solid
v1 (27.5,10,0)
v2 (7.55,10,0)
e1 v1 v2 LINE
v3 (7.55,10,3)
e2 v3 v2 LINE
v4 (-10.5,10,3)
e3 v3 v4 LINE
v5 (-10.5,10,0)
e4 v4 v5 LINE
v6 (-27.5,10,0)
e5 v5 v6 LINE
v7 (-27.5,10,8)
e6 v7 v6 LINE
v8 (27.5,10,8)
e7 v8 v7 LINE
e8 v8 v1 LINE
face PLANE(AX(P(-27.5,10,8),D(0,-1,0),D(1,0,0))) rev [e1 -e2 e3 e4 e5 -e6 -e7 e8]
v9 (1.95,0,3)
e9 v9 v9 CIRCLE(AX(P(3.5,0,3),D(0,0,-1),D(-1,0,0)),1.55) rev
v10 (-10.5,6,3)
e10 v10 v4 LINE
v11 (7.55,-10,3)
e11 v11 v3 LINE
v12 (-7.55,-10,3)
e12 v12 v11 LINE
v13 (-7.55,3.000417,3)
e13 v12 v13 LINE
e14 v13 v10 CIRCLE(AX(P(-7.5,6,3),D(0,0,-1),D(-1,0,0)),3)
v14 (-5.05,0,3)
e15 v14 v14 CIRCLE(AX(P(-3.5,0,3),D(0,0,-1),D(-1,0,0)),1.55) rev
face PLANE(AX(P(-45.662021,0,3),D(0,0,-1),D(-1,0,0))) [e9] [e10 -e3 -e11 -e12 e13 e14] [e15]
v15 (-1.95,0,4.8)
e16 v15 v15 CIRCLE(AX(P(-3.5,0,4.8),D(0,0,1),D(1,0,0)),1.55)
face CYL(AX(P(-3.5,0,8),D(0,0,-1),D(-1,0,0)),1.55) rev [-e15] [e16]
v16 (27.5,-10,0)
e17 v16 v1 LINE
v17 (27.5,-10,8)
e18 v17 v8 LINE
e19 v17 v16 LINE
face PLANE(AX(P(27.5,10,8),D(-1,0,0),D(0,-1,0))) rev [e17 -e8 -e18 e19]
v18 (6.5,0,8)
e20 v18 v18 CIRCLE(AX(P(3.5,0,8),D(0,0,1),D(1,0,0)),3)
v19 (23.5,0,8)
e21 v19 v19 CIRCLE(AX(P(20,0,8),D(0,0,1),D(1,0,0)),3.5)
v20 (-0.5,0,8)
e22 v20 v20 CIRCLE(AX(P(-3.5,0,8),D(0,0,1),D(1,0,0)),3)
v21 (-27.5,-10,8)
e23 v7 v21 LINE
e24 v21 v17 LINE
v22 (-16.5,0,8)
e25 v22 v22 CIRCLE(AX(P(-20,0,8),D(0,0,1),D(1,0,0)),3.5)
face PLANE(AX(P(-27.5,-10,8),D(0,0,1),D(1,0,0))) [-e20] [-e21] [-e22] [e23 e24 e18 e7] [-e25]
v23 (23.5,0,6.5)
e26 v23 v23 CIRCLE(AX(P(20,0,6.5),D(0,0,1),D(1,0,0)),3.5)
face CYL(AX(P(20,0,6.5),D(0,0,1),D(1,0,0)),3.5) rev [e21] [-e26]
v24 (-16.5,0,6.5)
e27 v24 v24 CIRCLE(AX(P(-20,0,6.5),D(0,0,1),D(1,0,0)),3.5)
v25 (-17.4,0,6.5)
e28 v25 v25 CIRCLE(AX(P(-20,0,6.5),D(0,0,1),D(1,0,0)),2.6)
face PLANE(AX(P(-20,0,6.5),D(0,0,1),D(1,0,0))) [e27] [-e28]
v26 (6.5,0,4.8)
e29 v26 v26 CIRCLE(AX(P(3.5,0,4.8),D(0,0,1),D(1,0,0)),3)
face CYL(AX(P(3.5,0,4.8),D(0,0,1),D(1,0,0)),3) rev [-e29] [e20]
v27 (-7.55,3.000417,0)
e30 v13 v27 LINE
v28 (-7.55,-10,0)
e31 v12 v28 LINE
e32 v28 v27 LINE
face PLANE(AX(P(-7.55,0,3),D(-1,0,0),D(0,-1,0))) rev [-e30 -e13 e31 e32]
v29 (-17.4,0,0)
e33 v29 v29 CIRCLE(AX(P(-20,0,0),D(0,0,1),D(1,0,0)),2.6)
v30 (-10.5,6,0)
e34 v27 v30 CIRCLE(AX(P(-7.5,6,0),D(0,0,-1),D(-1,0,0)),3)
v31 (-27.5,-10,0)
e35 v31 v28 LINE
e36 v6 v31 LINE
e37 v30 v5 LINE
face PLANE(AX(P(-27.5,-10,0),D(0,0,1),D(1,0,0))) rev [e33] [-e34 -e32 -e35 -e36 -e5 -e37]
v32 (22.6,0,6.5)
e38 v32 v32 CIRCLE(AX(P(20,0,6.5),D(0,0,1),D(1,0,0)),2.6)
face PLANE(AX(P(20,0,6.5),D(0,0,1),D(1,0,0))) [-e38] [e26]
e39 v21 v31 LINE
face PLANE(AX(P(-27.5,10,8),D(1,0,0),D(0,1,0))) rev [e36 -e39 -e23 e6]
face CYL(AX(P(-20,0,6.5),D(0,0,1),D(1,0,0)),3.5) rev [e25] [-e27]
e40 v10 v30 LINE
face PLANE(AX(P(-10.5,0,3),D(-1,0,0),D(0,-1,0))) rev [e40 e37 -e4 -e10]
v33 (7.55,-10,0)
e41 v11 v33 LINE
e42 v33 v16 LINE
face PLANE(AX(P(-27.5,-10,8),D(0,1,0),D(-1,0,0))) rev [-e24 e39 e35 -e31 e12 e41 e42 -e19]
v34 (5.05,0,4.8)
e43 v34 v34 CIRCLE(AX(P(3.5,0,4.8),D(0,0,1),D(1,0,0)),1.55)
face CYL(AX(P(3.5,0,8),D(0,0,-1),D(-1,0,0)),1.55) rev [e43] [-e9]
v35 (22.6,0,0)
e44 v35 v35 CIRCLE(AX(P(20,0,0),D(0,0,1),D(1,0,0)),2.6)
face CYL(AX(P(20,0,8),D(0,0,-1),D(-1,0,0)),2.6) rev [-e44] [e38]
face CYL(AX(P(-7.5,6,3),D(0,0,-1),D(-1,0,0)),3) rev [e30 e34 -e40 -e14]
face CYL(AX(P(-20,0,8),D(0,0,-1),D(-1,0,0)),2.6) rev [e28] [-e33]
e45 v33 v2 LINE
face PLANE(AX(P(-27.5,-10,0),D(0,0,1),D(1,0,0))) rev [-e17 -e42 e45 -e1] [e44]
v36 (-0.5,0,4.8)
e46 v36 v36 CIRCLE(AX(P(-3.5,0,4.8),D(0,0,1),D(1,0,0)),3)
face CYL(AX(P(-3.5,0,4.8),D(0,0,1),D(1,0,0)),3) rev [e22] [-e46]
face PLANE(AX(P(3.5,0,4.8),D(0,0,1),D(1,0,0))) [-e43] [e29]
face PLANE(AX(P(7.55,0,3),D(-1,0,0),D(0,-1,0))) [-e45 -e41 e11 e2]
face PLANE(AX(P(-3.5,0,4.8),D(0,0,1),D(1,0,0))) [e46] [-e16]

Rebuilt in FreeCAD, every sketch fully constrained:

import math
import FreeCAD as App
import Part
import Sketcher
Q = App.Units.Quantity

doc = App.newDocument("Part")
body = doc.addObject("PartDesign::Body", "Body")

# Sketch on XY plane
sketch1 = body.newObject("Sketcher::SketchObject", "Sketch")
sketch1.AttachmentSupport = (doc.getObject("XY_Plane"), [""])
sketch1.MapMode = "FlatFace"
sketch1.addGeometry([
    Part.LineSegment(App.Vector(-27.5, 10, 0), App.Vector(-27.5, -10, 0)),  # 0
    Part.LineSegment(App.Vector(-27.5, -10, 0), App.Vector(27.5, -10, 0)),  # 1
    Part.LineSegment(App.Vector(27.5, -10, 0), App.Vector(27.5, 10, 0)),  # 2
    Part.LineSegment(App.Vector(27.5, 10, 0), App.Vector(-27.5, 10, 0)),  # 3
    Part.Circle(App.Vector(-20, 0, 0), App.Vector(0, 0, 1), 2.6),  # 4
    Part.Circle(App.Vector(-3.5, 0, 0), App.Vector(0, 0, 1), 1.6),  # 5
    Part.Circle(App.Vector(3.5, 0, 0), App.Vector(0, 0, 1), 1.6),  # 6
    Part.Circle(App.Vector(20, 0, 0), App.Vector(0, 0, 1), 2.6),  # 7
], False)
sketch1.addConstraint([
    Sketcher.Constraint("Coincident", 0, 2, 1, 1),
    Sketcher.Constraint("Coincident", 1, 2, 2, 1),
    Sketcher.Constraint("Coincident", 2, 2, 3, 1),
    Sketcher.Constraint("Coincident", 3, 2, 0, 1),
    Sketcher.Constraint("Vertical", 0),
    Sketcher.Constraint("Horizontal", 1),
    Sketcher.Constraint("Vertical", 2),
    Sketcher.Constraint("Horizontal", 3),
    Sketcher.Constraint("Equal", 5, 6),
    Sketcher.Constraint("Equal", 4, 7),
    Sketcher.Constraint("Symmetric", 5, 3, 6, 3, -1, 1),
    Sketcher.Constraint("Symmetric", 4, 3, 7, 3, -1, 1),
    Sketcher.Constraint("Symmetric", 0, 2, 2, 2, -1, 1),
    Sketcher.Constraint("PointOnObject", 4, 3, -1),
    Sketcher.Constraint("PointOnObject", 5, 3, -1),
    Sketcher.Constraint("Diameter", 4, Q("5.2 mm")),
    Sketcher.Constraint("Diameter", 5, Q("3.1 mm")),
    Sketcher.Constraint("DistanceX", 1, 1, 1, 2, Q("55 mm")),
    Sketcher.Constraint("DistanceY", 0, 2, 0, 1, Q("20 mm")),
    Sketcher.Constraint("DistanceX", 4, 3, -1, 1, Q("20 mm")),
    Sketcher.Constraint("DistanceX", 5, 3, 6, 3, Q("7 mm")),
])
pad1 = body.newObject("PartDesign::Pad", "Pad")
pad1.Profile = sketch1
pad1.Length = 8

# Sketch on XY plane
sketch2 = body.newObject("Sketcher::SketchObject", "Sketch001")
sketch2.AttachmentSupport = (doc.getObject("XY_Plane"), [""])
sketch2.MapMode = "FlatFace"
sketch2.AttachmentOffset = App.Placement(App.Vector(0, 0, 8), App.Rotation())
sketch2.addGeometry([
    Part.Circle(App.Vector(-20, 0, 0), App.Vector(0, 0, 1), 3.5),
    Part.Circle(App.Vector(20, 0, 0), App.Vector(0, 0, 1), 3.5),
], False)
sketch2.addConstraint([
    Sketcher.Constraint("Equal", 0, 1),
    Sketcher.Constraint("Symmetric", 0, 3, 1, 3, -1, 1),
    Sketcher.Constraint("PointOnObject", 0, 3, -1),
    Sketcher.Constraint("Diameter", 0, Q("7 mm")),
    Sketcher.Constraint("DistanceX", 0, 3, -1, 1, Q("20 mm")),
])
pocket1 = body.newObject("PartDesign::Pocket", "Pocket")
pocket1.Profile = sketch2
pocket1.Length = 1.5

# Sketch on XY plane
sketch3 = body.newObject("Sketcher::SketchObject", "Sketch002")
sketch3.AttachmentSupport = (doc.getObject("XY_Plane"), [""])
sketch3.MapMode = "FlatFace"
sketch3.AttachmentOffset = App.Placement(App.Vector(0, 0, 8), App.Rotation())
sketch3.addGeometry([
    Part.Circle(App.Vector(-3.5, 0, 0), App.Vector(0, 0, 1), 3),
    Part.Circle(App.Vector(3.5, 0, 0), App.Vector(0, 0, 1), 3),
], False)
sketch3.addConstraint([
    Sketcher.Constraint("Equal", 0, 1),
    Sketcher.Constraint("Symmetric", 0, 3, 1, 3, -1, 1),
    Sketcher.Constraint("PointOnObject", 0, 3, -1),
    Sketcher.Constraint("Diameter", 0, Q("6 mm")),
    Sketcher.Constraint("DistanceX", 0, 3, 1, 3, Q("7 mm")),
])
pocket2 = body.newObject("PartDesign::Pocket", "Pocket001")
pocket2.Profile = sketch3
pocket2.Length = 3.2

# Sketch on XY plane
sketch4 = body.newObject("Sketcher::SketchObject", "Sketch003")
sketch4.AttachmentSupport = (doc.getObject("XY_Plane"), [""])
sketch4.MapMode = "FlatFace"
sketch4.addGeometry([
    Part.LineSegment(App.Vector(7.5, 10, 0), App.Vector(7.5, -10, 0)),  # 0
    Part.LineSegment(App.Vector(7.5, -10, 0), App.Vector(-7.5, -10, 0)),  # 1
    Part.LineSegment(App.Vector(-7.5, -10, 0), App.Vector(-7.5, 3, 0)),  # 2
    Part.ArcOfCircle(Part.Circle(App.Vector(-7.5, 6, 0), App.Vector(0, 0, 1), 3), math.radians(180), math.radians(269)),  # 3
    Part.LineSegment(App.Vector(-10.5, 6, 0), App.Vector(-10.5, 10, 0)),  # 4
    Part.LineSegment(App.Vector(-10.5, 10, 0), App.Vector(7.5, 10, 0)),  # 5
    Part.Circle(App.Vector(3.5, 0, 0), App.Vector(0, 0, 1), 1.6),  # 6
    Part.Circle(App.Vector(-3.5, 0, 0), App.Vector(0, 0, 1), 1.6),  # 7
], False)
sketch4.addConstraint([
    Sketcher.Constraint("Coincident", 0, 2, 1, 1),
    Sketcher.Constraint("Coincident", 1, 2, 2, 1),
    Sketcher.Constraint("Coincident", 2, 2, 3, 2),
    Sketcher.Constraint("Tangent", 3, 1, 4, 1),
    Sketcher.Constraint("Coincident", 4, 2, 5, 1),
    Sketcher.Constraint("Coincident", 5, 2, 0, 1),
    Sketcher.Constraint("Vertical", 0),
    Sketcher.Constraint("Horizontal", 1),
    Sketcher.Constraint("Vertical", 2),
    Sketcher.Constraint("Vertical", 4),
    Sketcher.Constraint("Horizontal", 5),
    Sketcher.Constraint("Equal", 6, 7),
    Sketcher.Constraint("Symmetric", 6, 3, 7, 3, -1, 1),
    Sketcher.Constraint("Symmetric", 1, 2, 5, 2, -1, 1),
    Sketcher.Constraint("PointOnObject", 6, 3, -1),
    Sketcher.Constraint("Radius", 3, Q("3 mm")),
    Sketcher.Constraint("Diameter", 6, Q("3.1 mm")),
    Sketcher.Constraint("DistanceY", 0, 2, 0, 1, Q("20 mm")),
    Sketcher.Constraint("DistanceY", 4, 1, 4, 2, Q("4 mm")),
    Sketcher.Constraint("DistanceX", 1, 2, 1, 1, Q("15.1 mm")),
    Sketcher.Constraint("DistanceX", 3, 3, 6, 3, Q("11 mm")),
    Sketcher.Constraint("DistanceX", 7, 3, 6, 3, Q("7 mm")),
])
pocket3 = body.newObject("PartDesign::Pocket", "Pocket002")
pocket3.Profile = sketch4
pocket3.Length = 3
pocket3.Reversed = True

doc.recompute()
